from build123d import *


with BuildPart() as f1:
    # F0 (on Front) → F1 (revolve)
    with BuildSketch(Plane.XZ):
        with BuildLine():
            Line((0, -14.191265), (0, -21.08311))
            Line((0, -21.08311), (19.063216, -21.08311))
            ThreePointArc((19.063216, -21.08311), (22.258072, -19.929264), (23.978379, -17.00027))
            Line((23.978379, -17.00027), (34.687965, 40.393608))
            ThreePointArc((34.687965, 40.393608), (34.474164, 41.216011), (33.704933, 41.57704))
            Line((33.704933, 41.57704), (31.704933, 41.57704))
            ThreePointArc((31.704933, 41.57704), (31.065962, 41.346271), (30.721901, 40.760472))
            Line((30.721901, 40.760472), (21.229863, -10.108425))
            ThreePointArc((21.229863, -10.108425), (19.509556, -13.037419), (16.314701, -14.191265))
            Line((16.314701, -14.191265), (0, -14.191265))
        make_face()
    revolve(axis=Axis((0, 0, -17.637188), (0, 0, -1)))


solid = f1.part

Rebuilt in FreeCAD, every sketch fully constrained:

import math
import FreeCAD as App
import Part
import Sketcher
from FreeCAD import Vector

doc = App.newDocument("Part")
body = doc.addObject("PartDesign::Body", "Body")

# Sketch on XZ plane
sketch1 = body.newObject("Sketcher::SketchObject", "Sketch")
sketch1.AttachmentSupport = (doc.getObject("XZ_Plane"), [""])
sketch1.MapMode = "FlatFace"
sketch1.addGeometry([
    Part.LineSegment(Vector(0, -14.191265, 0), Vector(0, -21.08311, 0)),  # 0
    Part.LineSegment(Vector(0, -21.08311, 0), Vector(19.063216, -21.08311, 0)),  # 1
    Part.ArcOfCircle(Part.Circle(Vector(19.063217, -16.08311, 0), Vector(0, 0, 1), 5), math.radians(-90.000009), math.radians(-10.569731)),  # 2
    Part.LineSegment(Vector(23.978379, -17.00027, 0), Vector(34.687965, 40.393608, 0)),  # 3
    Part.ArcOfCircle(Part.Circle(Vector(33.704934, 40.577041, 0), Vector(0, 0, 1), 0.999999), math.radians(-10.569782), math.radians(90.000031)),  # 4
    Part.LineSegment(Vector(33.704933, 41.57704, 0), Vector(31.704933, 41.57704, 0)),  # 5
    Part.ArcOfCircle(Part.Circle(Vector(31.704932, 40.577041, 0), Vector(0, 0, 1), 0.999999), math.radians(89.999961), math.radians(169.430334)),  # 6
    Part.LineSegment(Vector(30.721901, 40.760472, 0), Vector(21.229863, -10.108425, 0)),  # 7
    Part.ArcOfCircle(Part.Circle(Vector(16.314701, -9.191265, 0), Vector(0, 0, 1), 5), math.radians(-89.999997), math.radians(-10.569731)),  # 8
    Part.LineSegment(Vector(16.314701, -14.191265, 0), Vector(0, -14.191265, 0)),  # 9
], False)
sketch1.addConstraint([
    Sketcher.Constraint("Coincident", 0, 2, 1, 1),
    Sketcher.Constraint("Coincident", 1, 2, 2, 1),
    Sketcher.Constraint("Coincident", 2, 2, 3, 1),
    Sketcher.Constraint("Coincident", 3, 2, 4, 1),
    Sketcher.Constraint("Coincident", 4, 2, 5, 1),
    Sketcher.Constraint("Coincident", 5, 2, 6, 1),
    Sketcher.Constraint("Coincident", 6, 2, 7, 1),
    Sketcher.Constraint("Coincident", 7, 2, 8, 2),
    Sketcher.Constraint("Coincident", 8, 1, 9, 1),
    Sketcher.Constraint("Coincident", 9, 2, 0, 1),
    Sketcher.Constraint("Vertical", 0),
    Sketcher.Constraint("Horizontal", 1),
    Sketcher.Constraint("Horizontal", 5),
    Sketcher.Constraint("Horizontal", 9),
    Sketcher.Constraint("PointOnObject", 0, 2, -2),
    Sketcher.Constraint("Radius", 2, 5.0),
    Sketcher.Constraint("Radius", 4, 0.999999),
    Sketcher.Constraint("Radius", 6, 0.999999),
    Sketcher.Constraint("Radius", 8, 5.0),
    Sketcher.Constraint("DistanceX", 5, 2, 5, 1, 2.0),
    Sketcher.Constraint("DistanceX", 6, 3, 4, 3, 2.000001),
    Sketcher.Constraint("DistanceX", 6, 3, 4, 2, 2.000001),
    Sketcher.Constraint("DistanceX", 9, 2, 9, 1, 16.314701),
    Sketcher.Constraint("DistanceX", -1, 1, 8, 3, 16.314701),
    Sketcher.Constraint("DistanceX", -1, 1, 6, 2, 30.721901),
    Sketcher.Constraint("DistanceX", 1, 1, 1, 2, 19.063216),
    Sketcher.Constraint("DistanceY", 0, 2, 0, 1, 6.891845),
    Sketcher.Constraint("DistanceY", 2, 3, -1, 1, 16.08311),
    Sketcher.Constraint("DistanceY", -1, 1, 4, 3, 40.577041),
    Sketcher.Constraint("DistanceX", -1, 1, 2, 2, 23.978379),
    Sketcher.Constraint("DistanceY", 2, 2, -1, 1, 17.00027),
    Sketcher.Constraint("DistanceX", 8, 3, 6, 3, 15.390232),
    Sketcher.Constraint("DistanceX", 4, 3, 3, 2, 0.983031),
    Sketcher.Constraint("DistanceY", 7, 2, 8, 3, 0.91716),
])
revolution = body.newObject("PartDesign::Revolution", "Revolution")
revolution.Profile = sketch1
revolution.ReferenceAxis = (sketch1, ["V_Axis"])
revolution.Angle = 360

doc.recompute()
